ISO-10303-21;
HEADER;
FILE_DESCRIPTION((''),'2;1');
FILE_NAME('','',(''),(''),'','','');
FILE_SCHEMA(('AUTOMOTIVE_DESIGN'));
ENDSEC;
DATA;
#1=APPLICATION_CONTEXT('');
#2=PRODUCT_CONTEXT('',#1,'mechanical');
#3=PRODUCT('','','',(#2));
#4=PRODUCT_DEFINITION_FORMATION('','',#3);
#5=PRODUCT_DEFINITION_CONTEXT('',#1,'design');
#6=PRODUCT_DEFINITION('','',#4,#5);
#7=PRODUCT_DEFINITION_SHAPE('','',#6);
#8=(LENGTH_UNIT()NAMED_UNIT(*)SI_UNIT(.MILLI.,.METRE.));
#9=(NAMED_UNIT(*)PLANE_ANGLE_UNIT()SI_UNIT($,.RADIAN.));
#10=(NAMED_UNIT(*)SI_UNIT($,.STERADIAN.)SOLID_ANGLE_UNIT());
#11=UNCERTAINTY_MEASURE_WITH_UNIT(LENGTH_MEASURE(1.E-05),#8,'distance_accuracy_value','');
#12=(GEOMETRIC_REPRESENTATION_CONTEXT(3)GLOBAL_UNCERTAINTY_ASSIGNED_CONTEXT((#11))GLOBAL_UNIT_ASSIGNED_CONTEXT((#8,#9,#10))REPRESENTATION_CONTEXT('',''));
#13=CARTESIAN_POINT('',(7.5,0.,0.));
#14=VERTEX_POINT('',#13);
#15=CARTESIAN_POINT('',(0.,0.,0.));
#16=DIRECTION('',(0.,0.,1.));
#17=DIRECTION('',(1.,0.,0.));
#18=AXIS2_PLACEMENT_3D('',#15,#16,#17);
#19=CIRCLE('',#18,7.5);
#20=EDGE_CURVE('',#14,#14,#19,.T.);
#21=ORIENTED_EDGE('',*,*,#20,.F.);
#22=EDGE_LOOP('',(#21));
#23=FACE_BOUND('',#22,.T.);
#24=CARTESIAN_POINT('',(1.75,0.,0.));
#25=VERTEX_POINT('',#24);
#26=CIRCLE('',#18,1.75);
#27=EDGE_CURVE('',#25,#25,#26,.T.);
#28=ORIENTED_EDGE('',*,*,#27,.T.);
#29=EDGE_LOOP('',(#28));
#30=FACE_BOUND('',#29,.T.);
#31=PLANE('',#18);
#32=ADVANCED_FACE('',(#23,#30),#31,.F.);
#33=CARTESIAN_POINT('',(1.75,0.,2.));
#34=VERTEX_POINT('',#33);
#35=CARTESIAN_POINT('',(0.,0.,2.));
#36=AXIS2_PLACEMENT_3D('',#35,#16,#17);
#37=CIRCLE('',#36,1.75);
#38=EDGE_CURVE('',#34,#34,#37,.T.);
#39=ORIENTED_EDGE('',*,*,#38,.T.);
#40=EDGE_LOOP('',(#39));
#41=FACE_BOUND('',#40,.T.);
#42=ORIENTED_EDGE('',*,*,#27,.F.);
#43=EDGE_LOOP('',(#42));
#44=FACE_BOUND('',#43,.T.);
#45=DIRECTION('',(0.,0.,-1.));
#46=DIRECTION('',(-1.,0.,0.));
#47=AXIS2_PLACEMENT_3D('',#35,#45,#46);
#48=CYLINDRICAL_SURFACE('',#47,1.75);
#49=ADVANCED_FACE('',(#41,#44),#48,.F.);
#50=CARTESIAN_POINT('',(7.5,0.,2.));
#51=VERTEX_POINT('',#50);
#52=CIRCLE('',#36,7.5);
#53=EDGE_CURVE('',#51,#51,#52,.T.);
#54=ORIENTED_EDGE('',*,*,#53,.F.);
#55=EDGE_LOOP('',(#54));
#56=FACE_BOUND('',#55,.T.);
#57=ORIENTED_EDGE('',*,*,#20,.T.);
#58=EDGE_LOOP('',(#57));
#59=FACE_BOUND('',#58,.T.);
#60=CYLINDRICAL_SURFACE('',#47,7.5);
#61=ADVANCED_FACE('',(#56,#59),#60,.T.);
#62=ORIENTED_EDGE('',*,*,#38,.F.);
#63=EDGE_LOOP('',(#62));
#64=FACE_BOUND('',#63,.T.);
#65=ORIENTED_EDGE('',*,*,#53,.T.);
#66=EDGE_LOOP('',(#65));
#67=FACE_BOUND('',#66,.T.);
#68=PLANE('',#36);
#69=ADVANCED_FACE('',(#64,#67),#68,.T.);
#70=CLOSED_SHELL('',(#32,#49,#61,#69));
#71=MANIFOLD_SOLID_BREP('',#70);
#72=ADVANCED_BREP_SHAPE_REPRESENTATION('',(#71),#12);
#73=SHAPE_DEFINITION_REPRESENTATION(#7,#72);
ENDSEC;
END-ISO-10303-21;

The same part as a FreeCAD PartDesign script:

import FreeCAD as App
import Part
import Sketcher

V = App.Vector

doc = App.newDocument("Part")
params = doc.addObject("Spreadsheet::Sheet", "Params")
for row, (alias, value) in enumerate([
    ("sketch1_diameter", "15 mm"),
    ("sketch1_diameter2", "3.5 mm"),
    ("pad1_length", "2 mm"),
], start=1):
    params.set(f"A{row}", alias)
    params.set(f"B{row}", "=" + value)
    params.setAlias(f"B{row}", alias)

body = doc.addObject("PartDesign::Body", "Body")

# Sketch on XY plane
sketch1 = body.newObject("Sketcher::SketchObject", "Sketch")
sketch1.AttachmentSupport = (doc.getObject("XY_Plane"), [""])
sketch1.MapMode = "FlatFace"
sketch1.addGeometry([
    Part.Circle(V(0, 0, 0), V(0, 0, 1), 7.5),
    Part.Circle(V(0, 0, 0), V(0, 0, 1), 1.75),
], False)
sketch1.addConstraint([
    Sketcher.Constraint("Coincident", 0, 3, -1, 1),
    Sketcher.Constraint("Coincident", 1, 3, -1, 1),
    Sketcher.Constraint("Diameter", 0, 15.0),
    Sketcher.Constraint("Diameter", 1, 3.5),
])
sketch1.setExpression("Constraints[2]", "Params.sketch1_diameter")
sketch1.setExpression("Constraints[3]", "Params.sketch1_diameter2")
pad1 = body.newObject("PartDesign::Pad", "Pad")
pad1.Profile = sketch1
pad1.setExpression("Length", "Params.pad1_length")

doc.recompute()
